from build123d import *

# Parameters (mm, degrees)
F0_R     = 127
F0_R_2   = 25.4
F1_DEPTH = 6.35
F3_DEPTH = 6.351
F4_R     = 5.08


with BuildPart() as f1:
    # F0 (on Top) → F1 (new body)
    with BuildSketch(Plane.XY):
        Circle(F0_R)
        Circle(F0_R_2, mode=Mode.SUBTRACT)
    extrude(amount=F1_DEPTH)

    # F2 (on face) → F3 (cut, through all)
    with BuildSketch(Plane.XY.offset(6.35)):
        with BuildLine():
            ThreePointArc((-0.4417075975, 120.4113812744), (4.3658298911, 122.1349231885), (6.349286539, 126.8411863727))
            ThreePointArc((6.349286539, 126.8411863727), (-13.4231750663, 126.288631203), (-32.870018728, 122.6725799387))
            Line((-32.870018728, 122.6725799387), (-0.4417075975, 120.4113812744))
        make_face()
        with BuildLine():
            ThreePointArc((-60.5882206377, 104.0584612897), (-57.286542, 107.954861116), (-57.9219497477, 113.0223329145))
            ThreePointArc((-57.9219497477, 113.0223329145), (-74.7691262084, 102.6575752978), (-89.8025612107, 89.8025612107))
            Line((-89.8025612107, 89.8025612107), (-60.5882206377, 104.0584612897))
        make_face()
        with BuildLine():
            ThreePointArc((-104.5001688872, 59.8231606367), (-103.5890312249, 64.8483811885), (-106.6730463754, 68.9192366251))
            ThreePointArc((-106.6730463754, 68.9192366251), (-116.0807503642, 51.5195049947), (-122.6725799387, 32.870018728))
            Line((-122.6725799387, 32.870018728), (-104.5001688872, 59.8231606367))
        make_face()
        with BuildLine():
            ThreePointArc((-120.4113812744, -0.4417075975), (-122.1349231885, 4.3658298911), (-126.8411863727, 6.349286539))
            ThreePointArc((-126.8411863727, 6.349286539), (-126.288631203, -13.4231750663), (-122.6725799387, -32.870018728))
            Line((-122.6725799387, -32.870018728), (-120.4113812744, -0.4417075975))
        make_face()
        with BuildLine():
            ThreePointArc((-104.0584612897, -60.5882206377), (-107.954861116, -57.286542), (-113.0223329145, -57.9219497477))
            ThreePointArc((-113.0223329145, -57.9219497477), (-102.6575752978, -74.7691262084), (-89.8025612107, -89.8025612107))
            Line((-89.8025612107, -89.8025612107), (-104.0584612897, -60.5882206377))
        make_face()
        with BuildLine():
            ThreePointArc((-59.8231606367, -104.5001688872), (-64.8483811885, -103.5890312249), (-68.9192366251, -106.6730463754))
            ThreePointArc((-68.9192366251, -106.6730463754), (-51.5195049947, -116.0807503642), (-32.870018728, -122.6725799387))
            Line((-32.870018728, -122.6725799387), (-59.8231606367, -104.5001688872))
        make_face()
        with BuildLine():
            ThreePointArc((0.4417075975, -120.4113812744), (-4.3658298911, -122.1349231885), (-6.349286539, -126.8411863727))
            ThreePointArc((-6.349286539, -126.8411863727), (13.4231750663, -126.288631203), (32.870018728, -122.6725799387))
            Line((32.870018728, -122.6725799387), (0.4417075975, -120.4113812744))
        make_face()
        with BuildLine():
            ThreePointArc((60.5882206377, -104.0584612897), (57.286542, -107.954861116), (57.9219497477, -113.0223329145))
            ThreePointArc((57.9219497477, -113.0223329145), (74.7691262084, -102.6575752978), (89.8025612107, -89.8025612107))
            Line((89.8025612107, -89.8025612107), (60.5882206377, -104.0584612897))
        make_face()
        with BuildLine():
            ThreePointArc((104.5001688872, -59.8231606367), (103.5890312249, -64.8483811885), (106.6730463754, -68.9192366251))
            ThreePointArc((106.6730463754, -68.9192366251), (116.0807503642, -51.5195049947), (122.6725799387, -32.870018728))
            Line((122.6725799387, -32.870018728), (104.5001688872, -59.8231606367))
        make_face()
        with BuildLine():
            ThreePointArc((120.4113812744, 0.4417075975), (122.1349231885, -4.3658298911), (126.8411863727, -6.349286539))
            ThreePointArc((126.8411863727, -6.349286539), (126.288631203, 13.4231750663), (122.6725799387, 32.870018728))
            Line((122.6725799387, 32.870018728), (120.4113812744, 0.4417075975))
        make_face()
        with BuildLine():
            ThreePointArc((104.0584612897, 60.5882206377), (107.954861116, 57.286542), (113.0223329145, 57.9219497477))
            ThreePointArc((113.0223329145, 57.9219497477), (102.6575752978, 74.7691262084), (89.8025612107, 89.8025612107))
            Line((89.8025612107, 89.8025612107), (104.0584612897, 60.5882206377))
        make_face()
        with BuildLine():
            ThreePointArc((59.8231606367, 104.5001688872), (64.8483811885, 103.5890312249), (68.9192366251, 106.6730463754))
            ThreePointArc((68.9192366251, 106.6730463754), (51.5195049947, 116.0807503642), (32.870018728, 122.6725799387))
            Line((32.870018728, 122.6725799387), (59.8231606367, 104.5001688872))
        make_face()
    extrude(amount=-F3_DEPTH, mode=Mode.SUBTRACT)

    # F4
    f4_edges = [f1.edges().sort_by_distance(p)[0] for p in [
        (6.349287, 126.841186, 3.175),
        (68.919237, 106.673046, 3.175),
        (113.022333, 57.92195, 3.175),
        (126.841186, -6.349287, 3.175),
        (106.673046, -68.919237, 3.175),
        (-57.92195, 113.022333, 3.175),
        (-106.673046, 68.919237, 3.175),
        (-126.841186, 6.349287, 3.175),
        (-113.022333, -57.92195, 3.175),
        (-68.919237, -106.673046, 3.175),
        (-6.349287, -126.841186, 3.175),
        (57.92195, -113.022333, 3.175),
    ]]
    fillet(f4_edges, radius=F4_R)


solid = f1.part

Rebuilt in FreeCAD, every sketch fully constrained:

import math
import FreeCAD as App
import Part
import Sketcher
from FreeCAD import Vector
Q = App.Units.Quantity


def edges_at(feature, points):
    """Names of the edges that pass closest to the given points."""
    edges = feature.Shape.Edges
    near = lambda p: min(range(len(edges)), key=lambda i: edges[i].distToShape(Part.Vertex(*p))[0])
    return sorted({f"Edge{near(p) + 1}" for p in points})

doc = App.newDocument("Part")
body = doc.addObject("PartDesign::Body", "Body")

sketch1 = body.newObject("Sketcher::SketchObject", "Sketch")
sketch1.AttachmentSupport = (doc.getObject("XY_Plane"), [""])
sketch1.MapMode = "FlatFace"
sketch1.addGeometry(Part.Circle(Vector(0, 0, 0), Vector(0, 0, 1), 127), False)
sketch1.addGeometry(Part.Circle(Vector(0, 0, 0), Vector(0, 0, 1), 25.4), False)
sketch1.addConstraint(Sketcher.Constraint("Coincident", 0, 3, -1, 1))
sketch1.addConstraint(Sketcher.Constraint("Coincident", 1, 3, -1, 1))
sketch1.addConstraint(Sketcher.Constraint("Diameter", 0, Q("10 in")))
sketch1.addConstraint(Sketcher.Constraint("Diameter", 1, Q("2 in")))
pad1 = body.newObject("PartDesign::Pad", "Pad")
pad1.Profile = sketch1
pad1.Length = Q("0.25 in")

sketch2 = body.newObject("Sketcher::SketchObject", "Sketch001")
sketch2.AttachmentSupport = (doc.getObject("XY_Plane"), [""])
sketch2.MapMode = "FlatFace"
sketch2.AttachmentOffset = App.Placement(Vector(0, 0, 0.25 * 25.4), App.Rotation())
sketch2.addGeometry(Part.ArcOfCircle(Part.Circle(Vector(0, 126.746, 0), Vector(0, 0, 1), 6.35), math.radians(-93.98873), math.radians(0.858895)), False)
sketch2.addGeometry(Part.ArcOfCircle(Part.Circle(Vector(0, 0, 0), Vector(0, 0, 1), 127), math.radians(87.134338), math.radians(105)), False)
sketch2.addGeometry(Part.LineSegment(Vector(-32.870019, 122.67258, 0), Vector(-0.441708, 120.411381, 0)), False)
sketch2.addGeometry(Part.ArcOfCircle(Part.Circle(Vector(-63.373, 109.765256, 0), Vector(0, 0, 1), 6.35), math.radians(-63.98873), math.radians(30.858895)), False)
sketch2.addGeometry(Part.ArcOfCircle(Part.Circle(Vector(0, 0, 0), Vector(0, 0, 1), 127), math.radians(117.134338), math.radians(135)), False)
sketch2.addGeometry(Part.LineSegment(Vector(-89.802561, 89.802561, 0), Vector(-60.588221, 104.058461, 0)), False)
sketch2.addGeometry(Part.ArcOfCircle(Part.Circle(Vector(-109.765256, 63.373, 0), Vector(0, 0, 1), 6.35), math.radians(-33.98873), math.radians(60.858895)), False)
sketch2.addGeometry(Part.ArcOfCircle(Part.Circle(Vector(0, 0, 0), Vector(0, 0, 1), 127), math.radians(147.134338), math.radians(165)), False)
sketch2.addGeometry(Part.LineSegment(Vector(-122.67258, 32.870019, 0), Vector(-104.500169, 59.823161, 0)), False)
sketch2.addGeometry(Part.ArcOfCircle(Part.Circle(Vector(-126.746, 0, 0), Vector(0, 0, 1), 6.35), math.radians(-3.98873), math.radians(90.858895)), False)
sketch2.addGeometry(Part.ArcOfCircle(Part.Circle(Vector(0, 0, 0), Vector(0, 0, 1), 127), math.radians(177.134338), math.radians(195)), False)
sketch2.addGeometry(Part.LineSegment(Vector(-122.67258, -32.870019, 0), Vector(-120.411381, -0.441708, 0)), False)
sketch2.addGeometry(Part.ArcOfCircle(Part.Circle(Vector(-109.765256, -63.373, 0), Vector(0, 0, 1), 6.35), math.radians(26.01127), math.radians(120.858895)), False)
sketch2.addGeometry(Part.ArcOfCircle(Part.Circle(Vector(0, 0, 0), Vector(0, 0, 1), 127), math.radians(-152.865662), math.radians(-135)), False)
sketch2.addGeometry(Part.LineSegment(Vector(-89.802561, -89.802561, 0), Vector(-104.058461, -60.588221, 0)), False)
sketch2.addGeometry(Part.ArcOfCircle(Part.Circle(Vector(-63.373, -109.765256, 0), Vector(0, 0, 1), 6.35), math.radians(56.01127), math.radians(150.858895)), False)
sketch2.addGeometry(Part.ArcOfCircle(Part.Circle(Vector(0, 0, 0), Vector(0, 0, 1), 127), math.radians(-122.865662), math.radians(-105)), False)
sketch2.addGeometry(Part.LineSegment(Vector(-32.870019, -122.67258, 0), Vector(-59.823161, -104.500169, 0)), False)
sketch2.addGeometry(Part.ArcOfCircle(Part.Circle(Vector(0, -126.746, 0), Vector(0, 0, 1), 6.35), math.radians(86.01127), math.radians(180.858895)), False)
sketch2.addGeometry(Part.ArcOfCircle(Part.Circle(Vector(0, 0, 0), Vector(0, 0, 1), 127), math.radians(-92.865662), math.radians(-75)), False)
sketch2.addGeometry(Part.LineSegment(Vector(32.870019, -122.67258, 0), Vector(0.441708, -120.411381, 0)), False)
sketch2.addGeometry(Part.ArcOfCircle(Part.Circle(Vector(63.373, -109.765256, 0), Vector(0, 0, 1), 6.35), math.radians(116.01127), math.radians(210.858895)), False)
sketch2.addGeometry(Part.ArcOfCircle(Part.Circle(Vector(0, 0, 0), Vector(0, 0, 1), 127), math.radians(-62.865662), math.radians(-45)), False)
sketch2.addGeometry(Part.LineSegment(Vector(89.802561, -89.802561, 0), Vector(60.588221, -104.058461, 0)), False)
sketch2.addGeometry(Part.ArcOfCircle(Part.Circle(Vector(109.765256, -63.373, 0), Vector(0, 0, 1), 6.35), math.radians(146.01127), math.radians(240.858895)), False)
sketch2.addGeometry(Part.ArcOfCircle(Part.Circle(Vector(0, 0, 0), Vector(0, 0, 1), 127), math.radians(-32.865662), math.radians(-15)), False)
sketch2.addGeometry(Part.LineSegment(Vector(122.67258, -32.870019, 0), Vector(104.500169, -59.823161, 0)), False)
sketch2.addGeometry(Part.ArcOfCircle(Part.Circle(Vector(126.746, 0, 0), Vector(0, 0, 1), 6.35), math.radians(176.01127), math.radians(270.858895)), False)
sketch2.addGeometry(Part.ArcOfCircle(Part.Circle(Vector(0, 0, 0), Vector(0, 0, 1), 127), math.radians(-2.865662), math.radians(15)), False)
sketch2.addGeometry(Part.LineSegment(Vector(122.67258, 32.870019, 0), Vector(120.411381, 0.441708, 0)), False)
sketch2.addGeometry(Part.ArcOfCircle(Part.Circle(Vector(109.765256, 63.373, 0), Vector(0, 0, 1), 6.35), math.radians(-153.98873), math.radians(-59.141105)), False)
sketch2.addGeometry(Part.ArcOfCircle(Part.Circle(Vector(0, 0, 0), Vector(0, 0, 1), 127), math.radians(27.134338), math.radians(45)), False)
sketch2.addGeometry(Part.LineSegment(Vector(89.802561, 89.802561, 0), Vector(104.058461, 60.588221, 0)), False)
sketch2.addGeometry(Part.ArcOfCircle(Part.Circle(Vector(63.373, 109.765256, 0), Vector(0, 0, 1), 6.35), math.radians(-123.98873), math.radians(-29.141105)), False)
sketch2.addGeometry(Part.ArcOfCircle(Part.Circle(Vector(0, 0, 0), Vector(0, 0, 1), 127), math.radians(57.134338), math.radians(75)), False)
sketch2.addGeometry(Part.LineSegment(Vector(32.870019, 122.67258, 0), Vector(59.823161, 104.500169, 0)), False)
sketch2.addConstraint(Sketcher.Constraint("Coincident", 0, 2, 1, 1))
sketch2.addConstraint(Sketcher.Constraint("Coincident", 1, 2, 2, 1))
sketch2.addConstraint(Sketcher.Constraint("Tangent", 2, 2, 0, 1))
sketch2.addConstraint(Sketcher.Constraint("Coincident", 3, 2, 4, 1))
sketch2.addConstraint(Sketcher.Constraint("Coincident", 4, 2, 5, 1))
sketch2.addConstraint(Sketcher.Constraint("Tangent", 5, 2, 3, 1))
sketch2.addConstraint(Sketcher.Constraint("Coincident", 6, 2, 7, 1))
sketch2.addConstraint(Sketcher.Constraint("Coincident", 7, 2, 8, 1))
sketch2.addConstraint(Sketcher.Constraint("Tangent", 8, 2, 6, 1))
sketch2.addConstraint(Sketcher.Constraint("Coincident", 9, 2, 10, 1))
sketch2.addConstraint(Sketcher.Constraint("Coincident", 10, 2, 11, 1))
sketch2.addConstraint(Sketcher.Constraint("Tangent", 11, 2, 9, 1))
sketch2.addConstraint(Sketcher.Constraint("Coincident", 12, 2, 13, 1))
sketch2.addConstraint(Sketcher.Constraint("Coincident", 13, 2, 14, 1))
sketch2.addConstraint(Sketcher.Constraint("Tangent", 14, 2, 12, 1))
sketch2.addConstraint(Sketcher.Constraint("Coincident", 15, 2, 16, 1))
sketch2.addConstraint(Sketcher.Constraint("Coincident", 16, 2, 17, 1))
sketch2.addConstraint(Sketcher.Constraint("Tangent", 17, 2, 15, 1))
sketch2.addConstraint(Sketcher.Constraint("Coincident", 18, 2, 19, 1))
sketch2.addConstraint(Sketcher.Constraint("Coincident", 19, 2, 20, 1))
sketch2.addConstraint(Sketcher.Constraint("Tangent", 20, 2, 18, 1))
sketch2.addConstraint(Sketcher.Constraint("Coincident", 21, 2, 22, 1))
sketch2.addConstraint(Sketcher.Constraint("Coincident", 22, 2, 23, 1))
sketch2.addConstraint(Sketcher.Constraint("Tangent", 23, 2, 21, 1))
sketch2.addConstraint(Sketcher.Constraint("Coincident", 24, 2, 25, 1))
sketch2.addConstraint(Sketcher.Constraint("Coincident", 25, 2, 26, 1))
sketch2.addConstraint(Sketcher.Constraint("Tangent", 26, 2, 24, 1))
sketch2.addConstraint(Sketcher.Constraint("Coincident", 27, 2, 28, 1))
sketch2.addConstraint(Sketcher.Constraint("Coincident", 28, 2, 29, 1))
sketch2.addConstraint(Sketcher.Constraint("Tangent", 29, 2, 27, 1))
sketch2.addConstraint(Sketcher.Constraint("Coincident", 30, 2, 31, 1))
sketch2.addConstraint(Sketcher.Constraint("Coincident", 31, 2, 32, 1))
sketch2.addConstraint(Sketcher.Constraint("Tangent", 32, 2, 30, 1))
sketch2.addConstraint(Sketcher.Constraint("Coincident", 33, 2, 34, 1))
sketch2.addConstraint(Sketcher.Constraint("Coincident", 34, 2, 35, 1))
sketch2.addConstraint(Sketcher.Constraint("Tangent", 35, 2, 33, 1))
sketch2.addConstraint(Sketcher.Constraint("Coincident", 1, 3, -1, 1))
sketch2.addConstraint(Sketcher.Constraint("Coincident", 4, 3, -1, 1))
sketch2.addConstraint(Sketcher.Constraint("Coincident", 7, 3, -1, 1))
sketch2.addConstraint(Sketcher.Constraint("Coincident", 10, 3, -1, 1))
sketch2.addConstraint(Sketcher.Constraint("Coincident", 13, 3, -1, 1))
sketch2.addConstraint(Sketcher.Constraint("Coincident", 16, 3, -1, 1))
sketch2.addConstraint(Sketcher.Constraint("Coincident", 19, 3, -1, 1))
sketch2.addConstraint(Sketcher.Constraint("Coincident", 22, 3, -1, 1))
sketch2.addConstraint(Sketcher.Constraint("Coincident", 25, 3, -1, 1))
sketch2.addConstraint(Sketcher.Constraint("Coincident", 28, 3, -1, 1))
sketch2.addConstraint(Sketcher.Constraint("Coincident", 31, 3, -1, 1))
sketch2.addConstraint(Sketcher.Constraint("Coincident", 34, 3, -1, 1))
sketch2.addConstraint(Sketcher.Constraint("Equal", 0, 3))
sketch2.addConstraint(Sketcher.Constraint("Equal", 1, 4))
sketch2.addConstraint(Sketcher.Constraint("Equal", 3, 6))
sketch2.addConstraint(Sketcher.Constraint("Equal", 4, 7))
sketch2.addConstraint(Sketcher.Constraint("Equal", 6, 9))
sketch2.addConstraint(Sketcher.Constraint("Equal", 7, 10))
sketch2.addConstraint(Sketcher.Constraint("Equal", 9, 12))
sketch2.addConstraint(Sketcher.Constraint("Equal", 10, 13))
sketch2.addConstraint(Sketcher.Constraint("Equal", 12, 15))
sketch2.addConstraint(Sketcher.Constraint("Equal", 13, 16))
sketch2.addConstraint(Sketcher.Constraint("Equal", 15, 18))
sketch2.addConstraint(Sketcher.Constraint("Equal", 16, 19))
sketch2.addConstraint(Sketcher.Constraint("Equal", 18, 21))
sketch2.addConstraint(Sketcher.Constraint("Equal", 19, 22))
sketch2.addConstraint(Sketcher.Constraint("Equal", 21, 24))
sketch2.addConstraint(Sketcher.Constraint("Equal", 22, 25))
sketch2.addConstraint(Sketcher.Constraint("Equal", 24, 27))
sketch2.addConstraint(Sketcher.Constraint("Equal", 25, 28))
sketch2.addConstraint(Sketcher.Constraint("Equal", 27, 30))
sketch2.addConstraint(Sketcher.Constraint("Equal", 28, 31))
sketch2.addConstraint(Sketcher.Constraint("Equal", 30, 33))
sketch2.addConstraint(Sketcher.Constraint("Equal", 31, 34))
sketch2.addConstraint(Sketcher.Constraint("Symmetric", 0, 3, 18, 3, -1, 1))
sketch2.addConstraint(Sketcher.Constraint("Symmetric", 3, 3, 21, 3, -1, 1))
sketch2.addConstraint(Sketcher.Constraint("Symmetric", 6, 3, 24, 3, -1, 1))
sketch2.addConstraint(Sketcher.Constraint("Symmetric", 9, 3, 27, 3, -1, 1))
sketch2.addConstraint(Sketcher.Constraint("Symmetric", 12, 3, 30, 3, -1, 1))
sketch2.addConstraint(Sketcher.Constraint("Symmetric", 15, 3, 33, 3, -1, 1))
sketch2.addConstraint(Sketcher.Constraint("Symmetric", 15, 3, 21, 3, -2))
sketch2.addConstraint(Sketcher.Constraint("Symmetric", 12, 3, 24, 3, -2))
sketch2.addConstraint(Sketcher.Constraint("PointOnObject", 0, 3, -2))
sketch2.addConstraint(Sketcher.Constraint("PointOnObject", 9, 3, -1))
sketch2.addConstraint(Sketcher.Constraint("Perpendicular", 2, 11))
sketch2.addConstraint(Sketcher.Constraint("Perpendicular", 5, 14))
sketch2.addConstraint(Sketcher.Constraint("Perpendicular", 8, 17))
sketch2.addConstraint(Sketcher.Constraint("Perpendicular", 11, 20))
sketch2.addConstraint(Sketcher.Constraint("Perpendicular", 14, 23))
sketch2.addConstraint(Sketcher.Constraint("Perpendicular", 17, 26))
sketch2.addConstraint(Sketcher.Constraint("Perpendicular", 20, 29))
sketch2.addConstraint(Sketcher.Constraint("Perpendicular", 23, 32))
sketch2.addConstraint(Sketcher.Constraint("Perpendicular", 26, 35))
sketch2.addConstraint(Sketcher.Constraint("Horizontal", 16, 2, 19, 2))
sketch2.addConstraint(Sketcher.Constraint("Horizontal", 13, 2, 22, 2))
sketch2.addConstraint(Sketcher.Constraint("Horizontal", 10, 2, 25, 2))
sketch2.addConstraint(Sketcher.Constraint("Equal", 2, 5))
sketch2.addConstraint(Sketcher.Constraint("Equal", 5, 8))
sketch2.addConstraint(Sketcher.Constraint("Equal", 8, 11))
sketch2.addConstraint(Sketcher.Constraint("Equal", 11, 14))
sketch2.addConstraint(Sketcher.Constraint("Radius", 1, Q("5 in")))
sketch2.addConstraint(Sketcher.Constraint("Radius", 0, Q("0.25 in")))
sketch2.addConstraint(Sketcher.Constraint("DistanceY", -1, 1, 0, 3, Q("4.99 in")))
sketch2.addConstraint(Sketcher.Constraint("DistanceY", 12, 3, 6, 3, Q("4.99 in")))
pocket1 = body.newObject("PartDesign::Pocket", "Pocket")
pocket1.Profile = sketch2
pocket1.Type = "ThroughAll"
doc.recompute()

fillet = body.newObject("PartDesign::Fillet", "Fillet")
fillet.Base = (pocket1, edges_at(pocket1, [
    (6.349, 126.841, 3.175),
    (68.919, 106.673, 3.175),
    (113.022, 57.922, 3.175),
    (126.841, -6.349, 3.175),
    (106.673, -68.919, 3.175),
    (-57.922, 113.022, 3.175),
    (-106.673, 68.919, 3.175),
    (-126.841, 6.349, 3.175),
    (-113.022, -57.922, 3.175),
    (-68.919, -106.673, 3.175),
    (-6.349, -126.841, 3.175),
    (57.922, -113.022, 3.175),
]))
fillet.Radius = Q("0.2 in")

doc.recompute()
